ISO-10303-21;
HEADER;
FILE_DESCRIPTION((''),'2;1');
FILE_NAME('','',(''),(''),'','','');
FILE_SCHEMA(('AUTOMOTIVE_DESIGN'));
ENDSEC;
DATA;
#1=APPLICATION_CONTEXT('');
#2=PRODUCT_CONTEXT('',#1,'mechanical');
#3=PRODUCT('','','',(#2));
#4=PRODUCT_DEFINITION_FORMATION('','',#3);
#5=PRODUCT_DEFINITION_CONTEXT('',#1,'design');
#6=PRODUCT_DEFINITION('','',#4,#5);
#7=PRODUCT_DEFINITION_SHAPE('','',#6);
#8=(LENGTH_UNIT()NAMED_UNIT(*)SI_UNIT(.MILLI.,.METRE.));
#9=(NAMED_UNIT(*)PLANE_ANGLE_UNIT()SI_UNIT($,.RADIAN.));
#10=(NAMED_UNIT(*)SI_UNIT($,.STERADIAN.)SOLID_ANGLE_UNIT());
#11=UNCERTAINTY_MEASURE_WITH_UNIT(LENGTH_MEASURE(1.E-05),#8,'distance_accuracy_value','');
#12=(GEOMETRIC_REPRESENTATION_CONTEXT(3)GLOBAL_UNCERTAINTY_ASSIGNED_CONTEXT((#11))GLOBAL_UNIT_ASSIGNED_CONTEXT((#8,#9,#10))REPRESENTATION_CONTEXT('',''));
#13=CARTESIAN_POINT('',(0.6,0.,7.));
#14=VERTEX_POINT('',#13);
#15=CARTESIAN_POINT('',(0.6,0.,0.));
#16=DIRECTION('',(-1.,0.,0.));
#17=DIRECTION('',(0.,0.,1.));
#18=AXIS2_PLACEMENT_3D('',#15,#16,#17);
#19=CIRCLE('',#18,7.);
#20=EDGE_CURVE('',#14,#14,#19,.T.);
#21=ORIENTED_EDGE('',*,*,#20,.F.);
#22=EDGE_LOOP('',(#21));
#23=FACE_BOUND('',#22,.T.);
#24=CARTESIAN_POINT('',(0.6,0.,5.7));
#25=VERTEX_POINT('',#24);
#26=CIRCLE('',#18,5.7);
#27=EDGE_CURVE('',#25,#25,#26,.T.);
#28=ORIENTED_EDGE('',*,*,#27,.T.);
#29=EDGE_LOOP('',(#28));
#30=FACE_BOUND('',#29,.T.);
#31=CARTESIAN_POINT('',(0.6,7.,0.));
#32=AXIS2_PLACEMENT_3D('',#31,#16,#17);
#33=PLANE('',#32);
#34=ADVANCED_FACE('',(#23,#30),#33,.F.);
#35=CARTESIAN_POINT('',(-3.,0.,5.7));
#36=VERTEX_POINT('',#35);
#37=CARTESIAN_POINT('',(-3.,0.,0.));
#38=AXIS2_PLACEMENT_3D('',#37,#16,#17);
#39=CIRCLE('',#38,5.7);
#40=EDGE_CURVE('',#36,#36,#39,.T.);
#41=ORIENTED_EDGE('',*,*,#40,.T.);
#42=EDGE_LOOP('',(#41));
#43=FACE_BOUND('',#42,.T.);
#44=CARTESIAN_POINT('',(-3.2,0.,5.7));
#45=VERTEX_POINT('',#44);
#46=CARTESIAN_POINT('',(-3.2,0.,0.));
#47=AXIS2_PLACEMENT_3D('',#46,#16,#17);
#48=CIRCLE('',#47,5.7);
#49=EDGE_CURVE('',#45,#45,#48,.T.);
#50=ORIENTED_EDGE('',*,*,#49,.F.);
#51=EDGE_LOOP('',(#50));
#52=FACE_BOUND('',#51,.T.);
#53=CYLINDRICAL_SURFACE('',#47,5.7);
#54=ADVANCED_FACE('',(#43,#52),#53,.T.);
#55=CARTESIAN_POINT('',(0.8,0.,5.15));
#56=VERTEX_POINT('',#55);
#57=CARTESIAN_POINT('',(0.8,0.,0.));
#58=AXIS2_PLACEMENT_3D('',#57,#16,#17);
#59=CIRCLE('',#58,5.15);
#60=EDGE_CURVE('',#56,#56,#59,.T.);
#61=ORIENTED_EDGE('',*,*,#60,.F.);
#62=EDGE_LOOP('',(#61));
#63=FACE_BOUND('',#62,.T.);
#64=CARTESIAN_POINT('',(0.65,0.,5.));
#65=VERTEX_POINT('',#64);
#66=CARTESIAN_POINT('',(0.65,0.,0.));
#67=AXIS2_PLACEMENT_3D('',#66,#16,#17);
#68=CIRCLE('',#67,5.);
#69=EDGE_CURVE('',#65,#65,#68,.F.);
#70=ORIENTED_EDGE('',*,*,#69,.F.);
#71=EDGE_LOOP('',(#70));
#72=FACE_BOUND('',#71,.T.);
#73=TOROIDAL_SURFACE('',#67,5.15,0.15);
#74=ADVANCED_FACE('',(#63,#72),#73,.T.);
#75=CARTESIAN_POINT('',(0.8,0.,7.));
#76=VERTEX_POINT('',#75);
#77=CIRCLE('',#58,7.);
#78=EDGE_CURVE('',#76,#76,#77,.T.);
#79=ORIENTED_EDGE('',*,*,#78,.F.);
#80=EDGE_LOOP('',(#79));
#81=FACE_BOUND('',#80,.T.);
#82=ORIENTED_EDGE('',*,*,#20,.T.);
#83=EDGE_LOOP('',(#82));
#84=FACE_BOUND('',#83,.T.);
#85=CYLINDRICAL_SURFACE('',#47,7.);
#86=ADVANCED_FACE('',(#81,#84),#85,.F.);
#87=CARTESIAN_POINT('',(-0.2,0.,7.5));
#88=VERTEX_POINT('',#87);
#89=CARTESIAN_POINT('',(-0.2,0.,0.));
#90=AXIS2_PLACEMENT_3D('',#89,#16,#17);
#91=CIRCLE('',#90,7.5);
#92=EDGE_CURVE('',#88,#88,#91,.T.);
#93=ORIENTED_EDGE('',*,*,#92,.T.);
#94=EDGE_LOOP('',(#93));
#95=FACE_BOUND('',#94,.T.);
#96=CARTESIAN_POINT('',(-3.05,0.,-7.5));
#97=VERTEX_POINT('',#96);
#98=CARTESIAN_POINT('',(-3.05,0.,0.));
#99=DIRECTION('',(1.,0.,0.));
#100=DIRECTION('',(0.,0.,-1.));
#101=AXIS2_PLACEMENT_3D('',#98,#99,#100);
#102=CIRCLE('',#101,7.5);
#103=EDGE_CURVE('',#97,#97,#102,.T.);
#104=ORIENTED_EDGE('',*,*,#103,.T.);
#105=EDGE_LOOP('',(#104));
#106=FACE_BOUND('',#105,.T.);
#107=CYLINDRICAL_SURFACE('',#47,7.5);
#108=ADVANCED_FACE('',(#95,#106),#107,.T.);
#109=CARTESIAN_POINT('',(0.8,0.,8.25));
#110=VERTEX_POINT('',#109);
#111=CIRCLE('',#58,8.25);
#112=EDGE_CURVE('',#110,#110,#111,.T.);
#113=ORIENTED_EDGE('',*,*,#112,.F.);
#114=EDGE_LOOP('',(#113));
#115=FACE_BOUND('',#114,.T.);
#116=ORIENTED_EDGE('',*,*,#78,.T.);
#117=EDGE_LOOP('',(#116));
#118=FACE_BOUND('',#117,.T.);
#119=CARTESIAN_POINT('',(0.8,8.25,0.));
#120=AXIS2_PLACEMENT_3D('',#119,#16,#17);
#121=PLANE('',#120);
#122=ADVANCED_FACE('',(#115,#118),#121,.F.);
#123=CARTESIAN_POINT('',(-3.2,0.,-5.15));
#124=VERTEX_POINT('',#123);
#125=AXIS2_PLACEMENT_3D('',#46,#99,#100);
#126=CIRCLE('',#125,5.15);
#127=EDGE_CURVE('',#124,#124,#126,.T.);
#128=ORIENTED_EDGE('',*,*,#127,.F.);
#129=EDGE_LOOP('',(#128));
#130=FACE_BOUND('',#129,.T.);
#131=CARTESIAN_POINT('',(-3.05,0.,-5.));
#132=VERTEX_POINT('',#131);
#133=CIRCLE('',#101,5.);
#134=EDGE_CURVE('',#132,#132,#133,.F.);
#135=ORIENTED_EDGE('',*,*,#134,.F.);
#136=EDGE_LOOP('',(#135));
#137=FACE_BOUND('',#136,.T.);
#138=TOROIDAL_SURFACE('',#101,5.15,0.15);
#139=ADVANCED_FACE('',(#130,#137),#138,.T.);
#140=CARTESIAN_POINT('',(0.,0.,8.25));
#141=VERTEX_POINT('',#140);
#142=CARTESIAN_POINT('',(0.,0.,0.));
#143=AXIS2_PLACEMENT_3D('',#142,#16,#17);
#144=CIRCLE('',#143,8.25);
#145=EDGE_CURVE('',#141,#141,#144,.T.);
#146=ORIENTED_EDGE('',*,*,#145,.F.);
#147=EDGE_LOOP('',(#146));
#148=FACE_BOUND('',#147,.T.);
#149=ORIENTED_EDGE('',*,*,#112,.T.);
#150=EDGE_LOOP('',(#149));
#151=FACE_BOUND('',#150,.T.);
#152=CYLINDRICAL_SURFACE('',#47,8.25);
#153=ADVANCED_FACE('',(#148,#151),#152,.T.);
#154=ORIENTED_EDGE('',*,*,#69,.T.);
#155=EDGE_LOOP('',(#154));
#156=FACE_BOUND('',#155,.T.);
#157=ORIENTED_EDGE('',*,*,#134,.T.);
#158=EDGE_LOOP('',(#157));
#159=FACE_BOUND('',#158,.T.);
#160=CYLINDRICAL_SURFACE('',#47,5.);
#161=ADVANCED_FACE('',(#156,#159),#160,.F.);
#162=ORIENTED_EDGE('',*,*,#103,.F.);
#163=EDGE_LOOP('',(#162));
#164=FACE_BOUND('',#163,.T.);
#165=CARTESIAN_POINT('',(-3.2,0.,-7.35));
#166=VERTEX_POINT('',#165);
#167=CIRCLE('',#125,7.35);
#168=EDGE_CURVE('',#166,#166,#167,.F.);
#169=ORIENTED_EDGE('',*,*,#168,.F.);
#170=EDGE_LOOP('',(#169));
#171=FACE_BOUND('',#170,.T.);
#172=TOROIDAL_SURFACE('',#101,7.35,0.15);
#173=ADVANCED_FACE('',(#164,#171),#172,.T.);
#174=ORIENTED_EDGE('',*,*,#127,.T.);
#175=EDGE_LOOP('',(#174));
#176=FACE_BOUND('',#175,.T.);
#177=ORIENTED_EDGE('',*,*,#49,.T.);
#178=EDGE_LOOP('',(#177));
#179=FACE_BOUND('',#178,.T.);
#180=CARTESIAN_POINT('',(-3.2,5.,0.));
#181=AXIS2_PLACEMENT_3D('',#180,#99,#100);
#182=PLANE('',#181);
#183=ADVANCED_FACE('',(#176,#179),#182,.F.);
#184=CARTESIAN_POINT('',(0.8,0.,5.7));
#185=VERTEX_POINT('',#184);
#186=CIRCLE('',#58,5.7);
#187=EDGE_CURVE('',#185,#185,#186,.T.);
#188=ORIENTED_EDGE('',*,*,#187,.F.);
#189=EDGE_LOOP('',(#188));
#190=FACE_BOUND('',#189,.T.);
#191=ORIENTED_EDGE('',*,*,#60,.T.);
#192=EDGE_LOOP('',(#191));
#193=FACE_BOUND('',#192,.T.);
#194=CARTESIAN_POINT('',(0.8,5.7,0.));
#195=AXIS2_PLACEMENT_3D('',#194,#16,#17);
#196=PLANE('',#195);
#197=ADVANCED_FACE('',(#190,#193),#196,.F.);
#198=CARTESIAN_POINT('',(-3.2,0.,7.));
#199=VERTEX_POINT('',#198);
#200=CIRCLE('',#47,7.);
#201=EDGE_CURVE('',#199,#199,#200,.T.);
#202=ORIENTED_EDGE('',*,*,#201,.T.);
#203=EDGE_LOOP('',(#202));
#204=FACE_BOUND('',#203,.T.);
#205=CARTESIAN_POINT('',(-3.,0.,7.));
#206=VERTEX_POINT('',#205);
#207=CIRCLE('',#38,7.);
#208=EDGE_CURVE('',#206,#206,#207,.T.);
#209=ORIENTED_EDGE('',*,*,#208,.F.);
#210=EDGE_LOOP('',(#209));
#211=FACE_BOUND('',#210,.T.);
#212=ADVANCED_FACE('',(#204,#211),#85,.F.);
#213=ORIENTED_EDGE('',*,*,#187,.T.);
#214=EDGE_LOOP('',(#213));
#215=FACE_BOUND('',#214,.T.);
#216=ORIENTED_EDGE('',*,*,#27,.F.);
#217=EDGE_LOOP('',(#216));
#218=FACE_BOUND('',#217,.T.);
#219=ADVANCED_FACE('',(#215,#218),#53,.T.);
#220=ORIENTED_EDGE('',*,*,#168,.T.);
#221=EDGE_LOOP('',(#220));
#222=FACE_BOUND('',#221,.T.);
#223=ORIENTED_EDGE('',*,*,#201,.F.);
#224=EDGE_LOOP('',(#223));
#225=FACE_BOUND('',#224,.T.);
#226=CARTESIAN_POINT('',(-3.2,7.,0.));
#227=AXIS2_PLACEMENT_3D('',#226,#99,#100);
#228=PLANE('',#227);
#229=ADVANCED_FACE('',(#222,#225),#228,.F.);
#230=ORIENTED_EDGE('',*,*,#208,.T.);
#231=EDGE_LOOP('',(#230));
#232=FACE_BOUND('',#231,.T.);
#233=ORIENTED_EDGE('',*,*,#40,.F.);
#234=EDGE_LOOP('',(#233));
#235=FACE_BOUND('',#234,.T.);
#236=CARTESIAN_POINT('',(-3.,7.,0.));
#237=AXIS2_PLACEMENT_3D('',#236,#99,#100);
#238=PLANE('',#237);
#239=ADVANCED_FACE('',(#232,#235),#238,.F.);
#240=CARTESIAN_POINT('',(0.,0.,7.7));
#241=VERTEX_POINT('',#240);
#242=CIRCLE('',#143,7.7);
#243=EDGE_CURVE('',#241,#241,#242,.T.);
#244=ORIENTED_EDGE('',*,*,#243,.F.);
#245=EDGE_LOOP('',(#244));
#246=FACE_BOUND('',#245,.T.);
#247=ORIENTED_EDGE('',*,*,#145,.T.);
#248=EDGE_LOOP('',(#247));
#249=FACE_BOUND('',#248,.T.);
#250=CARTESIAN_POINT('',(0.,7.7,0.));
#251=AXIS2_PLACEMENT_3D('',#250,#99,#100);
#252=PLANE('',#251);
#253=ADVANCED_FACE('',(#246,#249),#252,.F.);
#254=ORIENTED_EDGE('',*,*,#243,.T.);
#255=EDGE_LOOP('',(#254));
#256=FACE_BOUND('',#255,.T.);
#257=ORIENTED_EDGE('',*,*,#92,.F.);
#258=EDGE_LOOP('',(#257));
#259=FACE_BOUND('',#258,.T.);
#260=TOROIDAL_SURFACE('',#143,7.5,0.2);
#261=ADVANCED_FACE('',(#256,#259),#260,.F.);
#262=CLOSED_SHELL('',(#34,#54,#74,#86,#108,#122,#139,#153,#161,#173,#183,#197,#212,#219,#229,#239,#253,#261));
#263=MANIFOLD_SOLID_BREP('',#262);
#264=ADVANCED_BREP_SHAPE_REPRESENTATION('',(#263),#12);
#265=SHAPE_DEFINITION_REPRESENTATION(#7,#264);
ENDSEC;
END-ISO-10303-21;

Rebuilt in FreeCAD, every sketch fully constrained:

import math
import FreeCAD as App
import Part
import Sketcher
Q = App.Units.Quantity


def edges_at(feature, points):
    """Names of the edges that pass closest to the given points."""
    edges = feature.Shape.Edges
    near = lambda p: min(range(len(edges)), key=lambda i: edges[i].distToShape(Part.Vertex(*p))[0])
    return sorted({f"Edge{near(p) + 1}" for p in points})

doc = App.newDocument("Part")
body = doc.addObject("PartDesign::Body", "Body")

# Sketch on XY plane
sketch1 = body.newObject("Sketcher::SketchObject", "Sketch")
sketch1.AttachmentSupport = (doc.getObject("XY_Plane"), [""])
sketch1.MapMode = "FlatFace"
sketch1.addGeometry(Part.LineSegment(App.Vector(0, 8.25, 0), App.Vector(0, 7.7, 0)), False)
sketch1.addGeometry(Part.ArcOfCircle(Part.Circle(App.Vector(0, 7.5, 0), App.Vector(0, 0, 1), 0.2), math.radians(180), math.radians(450)), False)
sketch1.addGeometry(Part.LineSegment(App.Vector(-0.2, 7.5, 0), App.Vector(-3.2, 7.5, 0)), False)
sketch1.addGeometry(Part.LineSegment(App.Vector(-3.2, 7.5, 0), App.Vector(-3.2, 7, 0)), False)
sketch1.addGeometry(Part.LineSegment(App.Vector(-3.2, 7, 0), App.Vector(-3, 7, 0)), False)
sketch1.addGeometry(Part.LineSegment(App.Vector(-3, 7, 0), App.Vector(-3, 5.7, 0)), False)
sketch1.addGeometry(Part.LineSegment(App.Vector(-3, 5.7, 0), App.Vector(-3.2, 5.7, 0)), False)
sketch1.addGeometry(Part.LineSegment(App.Vector(-3.2, 5.7, 0), App.Vector(-3.2, 5, 0)), False)
sketch1.addGeometry(Part.LineSegment(App.Vector(-3.2, 5, 0), App.Vector(0.8, 5, 0)), False)
sketch1.addGeometry(Part.LineSegment(App.Vector(0.8, 5, 0), App.Vector(0.8, 5.7, 0)), False)
sketch1.addGeometry(Part.LineSegment(App.Vector(0.8, 5.7, 0), App.Vector(0.6, 5.7, 0)), False)
sketch1.addGeometry(Part.LineSegment(App.Vector(0.6, 5.7, 0), App.Vector(0.6, 7, 0)), False)
sketch1.addGeometry(Part.LineSegment(App.Vector(0.6, 7, 0), App.Vector(0.8, 7, 0)), False)
sketch1.addGeometry(Part.LineSegment(App.Vector(0.8, 7, 0), App.Vector(0.8, 8.25, 0)), False)
sketch1.addGeometry(Part.LineSegment(App.Vector(0.8, 8.25, 0), App.Vector(0, 8.25, 0)), False)
sketch1.addConstraint(Sketcher.Constraint("Coincident", 0, 2, 1, 2))
sketch1.addConstraint(Sketcher.Constraint("Coincident", 1, 1, 2, 1))
sketch1.addConstraint(Sketcher.Constraint("Coincident", 2, 2, 3, 1))
sketch1.addConstraint(Sketcher.Constraint("Coincident", 3, 2, 4, 1))
sketch1.addConstraint(Sketcher.Constraint("Coincident", 4, 2, 5, 1))
sketch1.addConstraint(Sketcher.Constraint("Coincident", 5, 2, 6, 1))
sketch1.addConstraint(Sketcher.Constraint("Coincident", 6, 2, 7, 1))
sketch1.addConstraint(Sketcher.Constraint("Coincident", 7, 2, 8, 1))
sketch1.addConstraint(Sketcher.Constraint("Coincident", 8, 2, 9, 1))
sketch1.addConstraint(Sketcher.Constraint("Coincident", 9, 2, 10, 1))
sketch1.addConstraint(Sketcher.Constraint("Coincident", 10, 2, 11, 1))
sketch1.addConstraint(Sketcher.Constraint("Coincident", 11, 2, 12, 1))
sketch1.addConstraint(Sketcher.Constraint("Coincident", 12, 2, 13, 1))
sketch1.addConstraint(Sketcher.Constraint("Coincident", 13, 2, 14, 1))
sketch1.addConstraint(Sketcher.Constraint("Coincident", 14, 2, 0, 1))
sketch1.addConstraint(Sketcher.Constraint("Vertical", 0))
sketch1.addConstraint(Sketcher.Constraint("Horizontal", 2))
sketch1.addConstraint(Sketcher.Constraint("Vertical", 3))
sketch1.addConstraint(Sketcher.Constraint("Horizontal", 4))
sketch1.addConstraint(Sketcher.Constraint("Vertical", 5))
sketch1.addConstraint(Sketcher.Constraint("Horizontal", 6))
sketch1.addConstraint(Sketcher.Constraint("Vertical", 7))
sketch1.addConstraint(Sketcher.Constraint("Horizontal", 8))
sketch1.addConstraint(Sketcher.Constraint("Vertical", 9))
sketch1.addConstraint(Sketcher.Constraint("Horizontal", 10))
sketch1.addConstraint(Sketcher.Constraint("Vertical", 11))
sketch1.addConstraint(Sketcher.Constraint("Horizontal", 12))
sketch1.addConstraint(Sketcher.Constraint("Vertical", 13))
sketch1.addConstraint(Sketcher.Constraint("Horizontal", 14))
sketch1.addConstraint(Sketcher.Constraint("PointOnObject", 1, 3, -2))
sketch1.addConstraint(Sketcher.Constraint("PointOnObject", 0, 2, -2))
sketch1.addConstraint(Sketcher.Constraint("Horizontal", 6, 2, 9, 2))
sketch1.addConstraint(Sketcher.Constraint("Horizontal", 4, 2, 11, 2))
sketch1.addConstraint(Sketcher.Constraint("Vertical", 3, 2, 6, 2))
sketch1.addConstraint(Sketcher.Constraint("Vertical", 9, 2, 12, 2))
sketch1.addConstraint(Sketcher.Constraint("Equal", 6, 10))
sketch1.addConstraint(Sketcher.Constraint("Radius", 1, Q("0.2 mm")))
sketch1.addConstraint(Sketcher.Constraint("DistanceX", 2, 2, 2, 1, Q("3 mm")))
sketch1.addConstraint(Sketcher.Constraint("DistanceX", 8, 1, 8, 2, Q("4 mm")))
sketch1.addConstraint(Sketcher.Constraint("DistanceX", 4, 1, 4, 2, Q("0.2 mm")))
sketch1.addConstraint(Sketcher.Constraint("DistanceY", 3, 2, 3, 1, Q("0.5 mm")))
sketch1.addConstraint(Sketcher.Constraint("DistanceY", 5, 2, 5, 1, Q("1.3 mm")))
sketch1.addConstraint(Sketcher.Constraint("DistanceY", 7, 2, 7, 1, Q("0.7 mm")))
sketch1.addConstraint(Sketcher.Constraint("DistanceY", -1, 1, 3, 2, Q("7 mm")))
sketch1.addConstraint(Sketcher.Constraint("DistanceY", 9, 2, 0, 2, Q("2 mm")))
sketch1.addConstraint(Sketcher.Constraint("DistanceY", 0, 2, 0, 1, Q("0.55 mm")))
revolution = body.newObject("PartDesign::Revolution", "Revolution")
revolution.Profile = sketch1
revolution.ReferenceAxis = (sketch1, ["H_Axis"])
revolution.Angle = 360
doc.recompute()

fillet = body.newObject("PartDesign::Fillet", "Fillet")
fillet.Base = (revolution, edges_at(revolution, [(0.8, 0, -5), (-3.2, 0, -5), (-3.2, 0, -7.5)]))
fillet.Radius = 0.15

doc.recompute()
